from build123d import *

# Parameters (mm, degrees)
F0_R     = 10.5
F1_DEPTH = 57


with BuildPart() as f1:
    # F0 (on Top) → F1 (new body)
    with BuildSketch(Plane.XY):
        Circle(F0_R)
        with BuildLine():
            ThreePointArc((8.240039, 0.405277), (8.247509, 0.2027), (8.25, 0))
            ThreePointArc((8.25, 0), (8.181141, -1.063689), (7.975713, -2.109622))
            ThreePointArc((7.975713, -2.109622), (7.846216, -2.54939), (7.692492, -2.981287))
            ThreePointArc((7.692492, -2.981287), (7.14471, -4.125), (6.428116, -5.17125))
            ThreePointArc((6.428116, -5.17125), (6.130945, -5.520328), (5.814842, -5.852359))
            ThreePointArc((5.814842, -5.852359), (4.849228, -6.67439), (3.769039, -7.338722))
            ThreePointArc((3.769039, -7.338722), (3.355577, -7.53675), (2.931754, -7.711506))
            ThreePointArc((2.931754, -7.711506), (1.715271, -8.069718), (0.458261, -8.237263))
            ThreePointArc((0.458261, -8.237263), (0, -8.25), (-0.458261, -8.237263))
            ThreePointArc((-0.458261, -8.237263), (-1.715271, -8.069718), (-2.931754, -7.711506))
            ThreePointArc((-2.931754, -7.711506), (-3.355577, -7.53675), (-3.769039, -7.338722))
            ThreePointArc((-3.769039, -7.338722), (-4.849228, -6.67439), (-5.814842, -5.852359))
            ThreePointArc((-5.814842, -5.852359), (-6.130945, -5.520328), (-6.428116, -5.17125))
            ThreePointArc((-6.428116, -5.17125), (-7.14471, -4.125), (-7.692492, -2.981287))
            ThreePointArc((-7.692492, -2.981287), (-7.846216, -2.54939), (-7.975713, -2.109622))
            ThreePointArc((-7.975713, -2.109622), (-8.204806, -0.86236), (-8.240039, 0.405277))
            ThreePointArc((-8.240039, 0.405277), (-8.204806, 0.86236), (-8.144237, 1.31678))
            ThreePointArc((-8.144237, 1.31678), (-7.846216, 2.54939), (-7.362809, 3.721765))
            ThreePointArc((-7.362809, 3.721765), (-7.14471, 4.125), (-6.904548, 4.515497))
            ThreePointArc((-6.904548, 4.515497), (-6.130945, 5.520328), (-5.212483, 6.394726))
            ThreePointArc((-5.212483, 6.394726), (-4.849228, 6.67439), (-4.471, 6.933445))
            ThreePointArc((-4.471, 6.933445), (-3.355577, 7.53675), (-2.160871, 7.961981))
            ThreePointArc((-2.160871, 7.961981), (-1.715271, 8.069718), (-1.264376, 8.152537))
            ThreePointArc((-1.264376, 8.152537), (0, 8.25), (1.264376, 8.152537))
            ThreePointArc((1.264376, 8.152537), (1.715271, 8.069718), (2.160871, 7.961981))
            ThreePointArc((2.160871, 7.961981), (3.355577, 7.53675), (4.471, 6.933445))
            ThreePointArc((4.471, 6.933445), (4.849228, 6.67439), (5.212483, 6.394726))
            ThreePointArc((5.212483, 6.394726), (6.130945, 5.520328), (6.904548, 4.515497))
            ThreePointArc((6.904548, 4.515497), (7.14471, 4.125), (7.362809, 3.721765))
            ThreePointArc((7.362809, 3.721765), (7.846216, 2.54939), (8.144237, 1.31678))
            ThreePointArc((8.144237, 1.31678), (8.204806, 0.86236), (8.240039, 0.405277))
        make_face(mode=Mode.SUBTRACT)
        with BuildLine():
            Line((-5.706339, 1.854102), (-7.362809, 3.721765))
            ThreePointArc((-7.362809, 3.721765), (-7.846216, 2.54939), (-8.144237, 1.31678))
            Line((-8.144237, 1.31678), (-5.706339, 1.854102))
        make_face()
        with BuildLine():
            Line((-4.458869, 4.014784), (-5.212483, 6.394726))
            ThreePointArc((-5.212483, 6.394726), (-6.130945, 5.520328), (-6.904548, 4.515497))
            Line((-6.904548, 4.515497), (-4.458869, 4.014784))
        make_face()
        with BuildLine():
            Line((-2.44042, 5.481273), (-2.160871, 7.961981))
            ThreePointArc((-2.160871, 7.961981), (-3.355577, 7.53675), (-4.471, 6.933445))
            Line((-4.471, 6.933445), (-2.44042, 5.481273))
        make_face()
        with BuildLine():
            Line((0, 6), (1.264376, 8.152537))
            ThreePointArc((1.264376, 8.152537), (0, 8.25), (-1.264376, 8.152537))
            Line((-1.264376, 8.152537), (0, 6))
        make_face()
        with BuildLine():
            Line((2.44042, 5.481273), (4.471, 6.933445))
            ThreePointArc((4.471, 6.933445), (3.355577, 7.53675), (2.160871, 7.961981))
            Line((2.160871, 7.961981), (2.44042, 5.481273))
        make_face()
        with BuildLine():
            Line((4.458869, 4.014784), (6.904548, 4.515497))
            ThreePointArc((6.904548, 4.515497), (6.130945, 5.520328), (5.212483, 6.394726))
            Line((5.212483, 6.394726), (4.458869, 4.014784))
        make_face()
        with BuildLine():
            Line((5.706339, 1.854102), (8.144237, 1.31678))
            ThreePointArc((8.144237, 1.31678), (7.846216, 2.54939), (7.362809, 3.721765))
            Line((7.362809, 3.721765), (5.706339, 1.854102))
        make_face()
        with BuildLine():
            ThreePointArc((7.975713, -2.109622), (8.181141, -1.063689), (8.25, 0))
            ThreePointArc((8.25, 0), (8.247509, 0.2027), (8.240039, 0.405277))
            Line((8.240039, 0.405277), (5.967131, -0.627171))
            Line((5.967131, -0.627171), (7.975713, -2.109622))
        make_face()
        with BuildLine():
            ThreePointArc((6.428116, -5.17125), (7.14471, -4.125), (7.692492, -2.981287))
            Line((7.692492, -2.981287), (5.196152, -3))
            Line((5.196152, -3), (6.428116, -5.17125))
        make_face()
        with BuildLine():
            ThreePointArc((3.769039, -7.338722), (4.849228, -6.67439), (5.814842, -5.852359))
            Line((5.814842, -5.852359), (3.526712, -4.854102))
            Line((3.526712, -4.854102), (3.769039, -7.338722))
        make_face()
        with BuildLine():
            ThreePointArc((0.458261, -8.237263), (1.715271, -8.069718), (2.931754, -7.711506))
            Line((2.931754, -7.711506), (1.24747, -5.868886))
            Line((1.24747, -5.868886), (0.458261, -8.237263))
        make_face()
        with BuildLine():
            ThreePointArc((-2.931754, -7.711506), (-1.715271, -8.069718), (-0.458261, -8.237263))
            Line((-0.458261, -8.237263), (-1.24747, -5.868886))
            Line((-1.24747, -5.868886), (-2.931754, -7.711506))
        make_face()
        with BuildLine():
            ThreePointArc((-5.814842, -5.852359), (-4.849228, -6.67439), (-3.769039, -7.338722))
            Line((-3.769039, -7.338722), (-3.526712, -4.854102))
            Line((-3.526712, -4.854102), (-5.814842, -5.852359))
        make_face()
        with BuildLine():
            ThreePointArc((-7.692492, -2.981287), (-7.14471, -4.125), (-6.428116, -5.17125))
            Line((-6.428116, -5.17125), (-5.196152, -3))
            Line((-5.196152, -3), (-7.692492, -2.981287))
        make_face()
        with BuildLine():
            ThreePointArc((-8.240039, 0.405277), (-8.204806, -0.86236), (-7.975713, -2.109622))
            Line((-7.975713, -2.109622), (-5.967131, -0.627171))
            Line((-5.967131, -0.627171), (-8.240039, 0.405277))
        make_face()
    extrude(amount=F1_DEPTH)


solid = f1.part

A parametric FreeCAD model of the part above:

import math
import FreeCAD as App
import Part
import Sketcher
from FreeCAD import Vector
Q = App.Units.Quantity

doc = App.newDocument("Part")
body = doc.addObject("PartDesign::Body", "Body")

# Sketch on XY plane
sketch1 = doc.addObject("Sketcher::SketchObject", "Sketch")
body.addObject(sketch1)
sketch1.AttachmentSupport = (doc.XY_Plane, [""])
sketch1.MapMode = "FlatFace"
sketch1.addGeometry([
    Part.Circle(Vector(0, 0, 0), Vector(0, 0, 1), 10.5),  # 0
    Part.ArcOfCircle(Part.Circle(Vector(0.000282, 0.000037, 0), Vector(0, 0, 1), 8.249716), math.radians(2.815598), math.radians(9.1843)),  # 1
    Part.LineSegment(Vector(8.240039, 0.405277, 0), Vector(5.967131, -0.627171, 0)),  # 2
    Part.LineSegment(Vector(5.967131, -0.627171, 0), Vector(7.975713, -2.109622, 0)),  # 3
    Part.ArcOfCircle(Part.Circle(Vector(-0.000344, 0.00011, 0), Vector(0, 0, 1), 8.250361), math.radians(-21.184091), math.radians(-14.815894)),  # 4
    Part.LineSegment(Vector(7.692492, -2.981287, 0), Vector(5.196152, -3, 0)),  # 5
    Part.LineSegment(Vector(5.196152, -3, 0), Vector(6.428116, -5.17125, 0)),  # 6
    Part.ArcOfCircle(Part.Circle(Vector(0.000301, -0.000265, 0), Vector(0, 0, 1), 8.2496), math.radians(-45.184426), math.radians(-38.815639)),  # 7
    Part.LineSegment(Vector(5.814842, -5.852359, 0), Vector(3.526712, -4.854102, 0)),  # 8
    Part.LineSegment(Vector(3.526712, -4.854102, 0), Vector(3.769039, -7.338722, 0)),  # 9
    Part.ArcOfCircle(Part.Circle(Vector(-0.000059, 0.000119, 0), Vector(0, 0, 1), 8.250132), math.radians(-69.184147), math.radians(-62.815773)),  # 10
    Part.LineSegment(Vector(2.931754, -7.711506, 0), Vector(1.24747, -5.868886, 0)),  # 11
    Part.LineSegment(Vector(1.24747, -5.868886, 0), Vector(0.458261, -8.237263, 0)),  # 12
    Part.ArcOfCircle(Part.Circle(Vector(0, 0.000191, 0), Vector(0, 0, 1), 8.250191), math.radians(-93.184161), math.radians(-86.815839)),  # 13
    Part.LineSegment(Vector(-0.458261, -8.237263, 0), Vector(-1.24747, -5.868886, 0)),  # 14
    Part.LineSegment(Vector(-1.24747, -5.868886, 0), Vector(-2.931754, -7.711506, 0)),  # 15
    Part.ArcOfCircle(Part.Circle(Vector(0.000059, 0.000119, 0), Vector(0, 0, 1), 8.250132), math.radians(-117.184227), math.radians(-110.815853)),  # 16
    Part.LineSegment(Vector(-3.769039, -7.338722, 0), Vector(-3.526712, -4.854102, 0)),  # 17
    Part.LineSegment(Vector(-3.526712, -4.854102, 0), Vector(-5.814842, -5.852359, 0)),  # 18
    Part.ArcOfCircle(Part.Circle(Vector(-0.000301, -0.000265, 0), Vector(0, 0, 1), 8.2496), math.radians(-141.184361), math.radians(-134.815574)),  # 19
    Part.LineSegment(Vector(-6.428116, -5.17125, 0), Vector(-5.196152, -3, 0)),  # 20
    Part.LineSegment(Vector(-5.196152, -3, 0), Vector(-7.692492, -2.981287, 0)),  # 21
    Part.ArcOfCircle(Part.Circle(Vector(0.000344, 0.00011, 0), Vector(0, 0, 1), 8.250361), math.radians(-165.184106), math.radians(-158.815909)),  # 22
    Part.LineSegment(Vector(-7.975713, -2.109622, 0), Vector(-5.967131, -0.627171, 0)),  # 23
    Part.LineSegment(Vector(-5.967131, -0.627171, 0), Vector(-8.240039, 0.405277, 0)),  # 24
    Part.ArcOfCircle(Part.Circle(Vector(-0.000282, 0.000037, 0), Vector(0, 0, 1), 8.249716), math.radians(170.8157), math.radians(177.184402)),  # 25
    Part.LineSegment(Vector(-8.144237, 1.31678, 0), Vector(-5.706339, 1.854102, 0)),  # 26
    Part.LineSegment(Vector(-5.706339, 1.854102, 0), Vector(-7.362809, 3.721765, 0)),  # 27
    Part.ArcOfCircle(Part.Circle(Vector(-0.000417, 0.000244, 0), Vector(0, 0, 1), 8.249517), math.radians(146.815597), math.radians(153.184445)),  # 28
    Part.LineSegment(Vector(-6.904548, 4.515497, 0), Vector(-4.458869, 4.014784, 0)),  # 29
    Part.LineSegment(Vector(-4.458869, 4.014784, 0), Vector(-5.212483, 6.394726, 0)),  # 30
    Part.ArcOfCircle(Part.Circle(Vector(0.00014, -0.000191, 0), Vector(0, 0, 1), 8.250237), math.radians(122.815854), math.radians(129.184152)),  # 31
    Part.LineSegment(Vector(-4.471, 6.933445, 0), Vector(-2.44042, 5.481273, 0)),  # 32
    Part.LineSegment(Vector(-2.44042, 5.481273, 0), Vector(-2.160871, 7.961981, 0)),  # 33
    Part.ArcOfCircle(Part.Circle(Vector(0.00002, -0.000091, 0), Vector(0, 0, 1), 8.250093), math.radians(98.815803), math.radians(105.18421)),  # 34
    Part.LineSegment(Vector(-1.264376, 8.152537, 0), Vector(0, 6, 0)),  # 35
    Part.LineSegment(Vector(0, 6, 0), Vector(1.264376, 8.152537, 0)),  # 36
    Part.ArcOfCircle(Part.Circle(Vector(-0.00002, -0.000091, 0), Vector(0, 0, 1), 8.250093), math.radians(74.81579), math.radians(81.184197)),  # 37
    Part.LineSegment(Vector(2.160871, 7.961981, 0), Vector(2.44042, 5.481273, 0)),  # 38
    Part.LineSegment(Vector(2.44042, 5.481273, 0), Vector(4.471, 6.933445, 0)),  # 39
    Part.ArcOfCircle(Part.Circle(Vector(-0.00014, -0.000191, 0), Vector(0, 0, 1), 8.250237), math.radians(50.815848), math.radians(57.184146)),  # 40
    Part.LineSegment(Vector(5.212483, 6.394726, 0), Vector(4.458869, 4.014784, 0)),  # 41
    Part.LineSegment(Vector(4.458869, 4.014784, 0), Vector(6.904548, 4.515497, 0)),  # 42
    Part.ArcOfCircle(Part.Circle(Vector(0.000417, 0.000244, 0), Vector(0, 0, 1), 8.249517), math.radians(26.815555), math.radians(33.184403)),  # 43
    Part.LineSegment(Vector(7.362809, 3.721765, 0), Vector(5.706339, 1.854102, 0)),  # 44
    Part.LineSegment(Vector(5.706339, 1.854102, 0), Vector(8.144237, 1.31678, 0)),  # 45
], False)
sketch1.addConstraint([
    Sketcher.Constraint("Coincident", 1, 1, 2, 1),
    Sketcher.Constraint("Coincident", 2, 2, 3, 1),
    Sketcher.Constraint("Coincident", 3, 2, 4, 2),
    Sketcher.Constraint("Coincident", 4, 1, 5, 1),
    Sketcher.Constraint("Coincident", 5, 2, 6, 1),
    Sketcher.Constraint("Coincident", 6, 2, 7, 2),
    Sketcher.Constraint("Coincident", 7, 1, 8, 1),
    Sketcher.Constraint("Coincident", 8, 2, 9, 1),
    Sketcher.Constraint("Coincident", 9, 2, 10, 2),
    Sketcher.Constraint("Coincident", 10, 1, 11, 1),
    Sketcher.Constraint("Coincident", 11, 2, 12, 1),
    Sketcher.Constraint("Coincident", 12, 2, 13, 2),
    Sketcher.Constraint("Coincident", 13, 1, 14, 1),
    Sketcher.Constraint("Coincident", 14, 2, 15, 1),
    Sketcher.Constraint("Coincident", 15, 2, 16, 2),
    Sketcher.Constraint("Coincident", 16, 1, 17, 1),
    Sketcher.Constraint("Coincident", 17, 2, 18, 1),
    Sketcher.Constraint("Coincident", 18, 2, 19, 2),
    Sketcher.Constraint("Coincident", 19, 1, 20, 1),
    Sketcher.Constraint("Coincident", 20, 2, 21, 1),
    Sketcher.Constraint("Coincident", 21, 2, 22, 2),
    Sketcher.Constraint("Coincident", 22, 1, 23, 1),
    Sketcher.Constraint("Coincident", 23, 2, 24, 1),
    Sketcher.Constraint("Coincident", 24, 2, 25, 2),
    Sketcher.Constraint("Coincident", 25, 1, 26, 1),
    Sketcher.Constraint("Coincident", 26, 2, 27, 1),
    Sketcher.Constraint("Coincident", 27, 2, 28, 2),
    Sketcher.Constraint("Coincident", 28, 1, 29, 1),
    Sketcher.Constraint("Coincident", 29, 2, 30, 1),
    Sketcher.Constraint("Coincident", 30, 2, 31, 2),
    Sketcher.Constraint("Coincident", 31, 1, 32, 1),
    Sketcher.Constraint("Coincident", 32, 2, 33, 1),
    Sketcher.Constraint("Coincident", 33, 2, 34, 2),
    Sketcher.Constraint("Coincident", 34, 1, 35, 1),
    Sketcher.Constraint("Coincident", 35, 2, 36, 1),
    Sketcher.Constraint("Coincident", 36, 2, 37, 2),
    Sketcher.Constraint("Coincident", 37, 1, 38, 1),
    Sketcher.Constraint("Coincident", 38, 2, 39, 1),
    Sketcher.Constraint("Coincident", 39, 2, 40, 2),
    Sketcher.Constraint("Coincident", 40, 1, 41, 1),
    Sketcher.Constraint("Coincident", 41, 2, 42, 1),
    Sketcher.Constraint("Coincident", 42, 2, 43, 2),
    Sketcher.Constraint("Coincident", 43, 1, 44, 1),
    Sketcher.Constraint("Coincident", 44, 2, 45, 1),
    Sketcher.Constraint("Coincident", 45, 2, 1, 2),
    Sketcher.Constraint("Coincident", 0, 3, -1, 1),
    Sketcher.Constraint("Equal", 10, 16),
    Sketcher.Constraint("Equal", 7, 19),
    Sketcher.Constraint("Equal", 4, 22),
    Sketcher.Constraint("Equal", 1, 25),
    Sketcher.Constraint("Equal", 34, 37),
    Sketcher.Constraint("Equal", 31, 40),
    Sketcher.Constraint("Equal", 28, 43),
    Sketcher.Constraint("Symmetric", 10, 3, 16, 3, -2),
    Sketcher.Constraint("Symmetric", 7, 3, 19, 3, -2),
    Sketcher.Constraint("Symmetric", 4, 3, 22, 3, -2),
    Sketcher.Constraint("Symmetric", 1, 3, 25, 3, -2),
    Sketcher.Constraint("Symmetric", 34, 3, 37, 3, -2),
    Sketcher.Constraint("Symmetric", 31, 3, 40, 3, -2),
    Sketcher.Constraint("Symmetric", 28, 3, 43, 3, -2),
    Sketcher.Constraint("Symmetric", 12, 2, 13, 1, -2),
    Sketcher.Constraint("Symmetric", 11, 2, 14, 2, -2),
    Sketcher.Constraint("Symmetric", 8, 2, 17, 2, -2),
    Sketcher.Constraint("Symmetric", 5, 2, 20, 2, -2),
    Sketcher.Constraint("Symmetric", 2, 2, 23, 2, -2),
    Sketcher.Constraint("Symmetric", 32, 2, 38, 2, -2),
    Sketcher.Constraint("Symmetric", 29, 2, 41, 2, -2),
    Sketcher.Constraint("Symmetric", 26, 2, 44, 2, -2),
    Sketcher.Constraint("PointOnObject", 35, 2, -2),
    Sketcher.Constraint("Horizontal", 10, 1, 15, 2),
    Sketcher.Constraint("Horizontal", 9, 2, 16, 1),
    Sketcher.Constraint("Horizontal", 7, 1, 18, 2),
    Sketcher.Constraint("Horizontal", 6, 2, 19, 1),
    Sketcher.Constraint("Horizontal", 4, 1, 21, 2),
    Sketcher.Constraint("Horizontal", 3, 2, 22, 1),
    Sketcher.Constraint("Horizontal", 1, 1, 24, 2),
    Sketcher.Constraint("Horizontal", 34, 1, 36, 2),
    Sketcher.Constraint("Horizontal", 33, 2, 37, 1),
    Sketcher.Constraint("Horizontal", 31, 1, 39, 2),
    Sketcher.Constraint("Horizontal", 30, 2, 40, 1),
    Sketcher.Constraint("Horizontal", 28, 1, 42, 2),
    Sketcher.Constraint("Horizontal", 27, 2, 43, 1),
    Sketcher.Constraint("Horizontal", 25, 1, 45, 2),
    Sketcher.Constraint("Equal", 2, 3),
    Sketcher.Constraint("Equal", 3, 5),
    Sketcher.Constraint("Equal", 5, 6),
    Sketcher.Constraint("Equal", 6, 8),
    Sketcher.Constraint("Equal", 8, 9),
    Sketcher.Constraint("Equal", 9, 11),
    Sketcher.Constraint("Equal", 11, 12),
    Sketcher.Constraint("Equal", 24, 26),
    Sketcher.Constraint("Equal", 26, 27),
    Sketcher.Constraint("Equal", 27, 29),
    Sketcher.Constraint("Equal", 29, 30),
    Sketcher.Constraint("Equal", 30, 32),
    Sketcher.Constraint("Equal", 32, 33),
    Sketcher.Constraint("Equal", 33, 35),
    Sketcher.Constraint("Diameter", 0, Q("21 mm")),
    Sketcher.Constraint("DistanceY", 5, 2, -1, 1, Q("3 mm")),
    Sketcher.Constraint("DistanceY", -1, 1, 35, 2, Q("6 mm")),
    Sketcher.Constraint("Radius", 7, Q("8.2496 mm")),
    Sketcher.Constraint("Radius", 4, Q("8.250361 mm")),
    Sketcher.Constraint("Radius", 13, Q("8.250191 mm")),
    Sketcher.Constraint("DistanceX", 31, 1, -1, 1, Q("4.471 mm")),
    Sketcher.Constraint("Radius", 1, Q("8.249716 mm")),
    Sketcher.Constraint("Radius", 10, Q("8.250132 mm")),
    Sketcher.Constraint("Radius", 28, Q("8.249517 mm")),
    Sketcher.Constraint("Radius", 31, Q("8.250237 mm")),
    Sketcher.Constraint("Radius", 34, Q("8.250093 mm")),
    Sketcher.Constraint("DistanceX", -1, 1, 7, 3, Q("0.000301 mm")),
    Sketcher.Constraint("DistanceY", -1, 1, 26, 2, Q("1.854102 mm")),
    Sketcher.Constraint("Distance", 2, Q("2.496409 mm")),
    Sketcher.Constraint("DistanceX", -1, 1, 1, 3, Q("0.000282 mm")),
    Sketcher.Constraint("DistanceY", -1, 1, 4, 3, Q("0.00011 mm")),
    Sketcher.Constraint("DistanceY", -1, 1, 10, 3, Q("0.000119 mm")),
    Sketcher.Constraint("DistanceY", -1, 1, 13, 3, Q("0.000191 mm")),
    Sketcher.Constraint("DistanceX", -1, 1, 31, 3, Q("0.00014 mm")),
    Sketcher.Constraint("DistanceY", 31, 3, -1, 1, Q("0.000191 mm")),
    Sketcher.Constraint("DistanceX", -1, 1, 1, 1, Q("8.240039 mm")),
    Sketcher.Constraint("DistanceX", -1, 1, 2, 2, Q("5.967131 mm")),
    Sketcher.Constraint("DistanceY", 2, 2, -1, 1, Q("0.627171 mm")),
    Sketcher.Constraint("DistanceY", 3, 2, -1, 1, Q("2.109622 mm")),
    Sketcher.Constraint("DistanceX", -1, 1, 4, 1, Q("7.692492 mm")),
    Sketcher.Constraint("DistanceY", 6, 2, -1, 1, Q("5.17125 mm")),
    Sketcher.Constraint("DistanceX", -1, 1, 7, 1, Q("5.814842 mm")),
    Sketcher.Constraint("DistanceX", -1, 1, 8, 2, Q("3.526712 mm")),
    Sketcher.Constraint("DistanceX", -1, 1, 9, 2, Q("3.769039 mm")),
    Sketcher.Constraint("DistanceX", -1, 1, 11, 2, Q("1.24747 mm")),
    Sketcher.Constraint("DistanceX", -1, 1, 12, 2, Q("0.458261 mm")),
    Sketcher.Constraint("DistanceY", -1, 1, 25, 1, Q("1.31678 mm")),
    Sketcher.Constraint("DistanceX", 27, 2, -1, 1, Q("7.362809 mm")),
    Sketcher.Constraint("DistanceX", 29, 2, -1, 1, Q("4.458869 mm")),
    Sketcher.Constraint("DistanceX", 32, 2, -1, 1, Q("2.44042 mm")),
    Sketcher.Constraint("DistanceX", 33, 2, -1, 1, Q("2.160871 mm")),
    Sketcher.Constraint("DistanceX", 28, 3, -1, 1, Q("0.000417 mm")),
    Sketcher.Constraint("DistanceX", 28, 1, -1, 1, Q("6.904548 mm")),
    Sketcher.Constraint("DistanceX", 34, 1, -1, 1, Q("1.264376 mm")),
])
pad1 = doc.addObject("PartDesign::Pad", "Pad")
body.addObject(pad1)
pad1.Profile = sketch1
pad1.Length = 57

doc.recompute()
